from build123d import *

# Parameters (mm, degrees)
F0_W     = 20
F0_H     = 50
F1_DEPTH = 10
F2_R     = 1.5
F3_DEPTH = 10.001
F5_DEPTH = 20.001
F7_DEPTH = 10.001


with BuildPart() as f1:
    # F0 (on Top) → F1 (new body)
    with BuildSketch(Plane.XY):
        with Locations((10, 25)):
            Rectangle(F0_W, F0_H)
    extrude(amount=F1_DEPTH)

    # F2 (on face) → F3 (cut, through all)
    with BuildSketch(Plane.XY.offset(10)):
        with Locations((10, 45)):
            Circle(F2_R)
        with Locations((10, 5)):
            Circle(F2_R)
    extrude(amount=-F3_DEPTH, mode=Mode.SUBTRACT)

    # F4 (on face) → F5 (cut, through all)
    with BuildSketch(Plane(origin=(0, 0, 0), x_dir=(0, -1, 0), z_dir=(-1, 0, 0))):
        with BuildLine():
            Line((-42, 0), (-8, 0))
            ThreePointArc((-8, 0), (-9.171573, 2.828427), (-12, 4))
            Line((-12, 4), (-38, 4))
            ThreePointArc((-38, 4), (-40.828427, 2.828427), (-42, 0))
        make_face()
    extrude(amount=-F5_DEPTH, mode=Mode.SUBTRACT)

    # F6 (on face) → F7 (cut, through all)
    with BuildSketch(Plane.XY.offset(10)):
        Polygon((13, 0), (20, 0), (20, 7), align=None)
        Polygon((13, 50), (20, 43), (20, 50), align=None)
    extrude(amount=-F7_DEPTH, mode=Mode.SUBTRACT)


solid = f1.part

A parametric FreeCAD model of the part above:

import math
import FreeCAD as App
import Part
import Sketcher

V = App.Vector
Q = App.Units.Quantity

doc = App.newDocument("Part")
body = doc.addObject("PartDesign::Body", "Body")

sketch1 = body.newObject("Sketcher::SketchObject", "Sketch")
sketch1.AttachmentSupport = (doc.getObject("XY_Plane"), [""])
sketch1.MapMode = "FlatFace"
sketch1.addGeometry([
    Part.LineSegment(V(0, 50, 0), V(0, 0, 0)),
    Part.LineSegment(V(0, 0, 0), V(20, 0, 0)),
    Part.LineSegment(V(20, 0, 0), V(20, 50, 0)),
    Part.LineSegment(V(20, 50, 0), V(0, 50, 0)),
], False)
sketch1.addConstraint([
    Sketcher.Constraint("Coincident", 0, 2, 1, 1),
    Sketcher.Constraint("Coincident", 1, 2, 2, 1),
    Sketcher.Constraint("Coincident", 2, 2, 3, 1),
    Sketcher.Constraint("Coincident", 3, 2, 0, 1),
    Sketcher.Constraint("Vertical", 0),
    Sketcher.Constraint("Horizontal", 1),
    Sketcher.Constraint("Vertical", 2),
    Sketcher.Constraint("Horizontal", 3),
    Sketcher.Constraint("Coincident", 0, 2, -1, 1),
    Sketcher.Constraint("DistanceX", 1, 1, 1, 2, Q("20 mm")),
    Sketcher.Constraint("DistanceY", 0, 2, 0, 1, Q("50 mm")),
])
pad1 = body.newObject("PartDesign::Pad", "Pad")
pad1.Profile = sketch1
pad1.Length = 10

sketch2 = body.newObject("Sketcher::SketchObject", "Sketch001")
sketch2.AttachmentSupport = (doc.getObject("XY_Plane"), [""])
sketch2.MapMode = "FlatFace"
sketch2.AttachmentOffset = App.Placement(V(0, 0, 10), App.Rotation())
sketch2.addGeometry([
    Part.Circle(V(10, 45, 0), V(0, 0, 1), 1.5),
    Part.Circle(V(10, 5, 0), V(0, 0, 1), 1.5),
], False)
sketch2.addConstraint([
    Sketcher.Constraint("Equal", 0, 1),
    Sketcher.Constraint("Vertical", 0, 3, 1, 3),
    Sketcher.Constraint("Diameter", 0, Q("3 mm")),
    Sketcher.Constraint("DistanceX", -1, 1, 0, 3, Q("10 mm")),
    Sketcher.Constraint("DistanceY", -1, 1, 0, 3, Q("45 mm")),
    Sketcher.Constraint("DistanceY", -1, 1, 1, 3, Q("5 mm")),
])
pocket1 = body.newObject("PartDesign::Pocket", "Pocket")
pocket1.Profile = sketch2
pocket1.Type = "ThroughAll"

sketch3 = body.newObject("Sketcher::SketchObject", "Sketch002")
sketch3.AttachmentSupport = (doc.getObject("YZ_Plane"), [""])
sketch3.MapMode = "FlatFace"
sketch3.addGeometry([
    Part.LineSegment(V(42, 0, 0), V(8, 0, 0)),
    Part.ArcOfCircle(Part.Circle(V(12, 0, 0), V(0, 0, 1), 4), math.radians(90), math.radians(180)),
    Part.LineSegment(V(12, 4, 0), V(38, 4, 0)),
    Part.ArcOfCircle(Part.Circle(V(38, 0, 0), V(0, 0, 1), 4), math.radians(0), math.radians(90)),
], False)
sketch3.addConstraint([
    Sketcher.Constraint("Coincident", 0, 2, 1, 2),
    Sketcher.Constraint("Tangent", 1, 1, 2, 1),
    Sketcher.Constraint("Tangent", 2, 2, 3, 2),
    Sketcher.Constraint("Coincident", 3, 1, 0, 1),
    Sketcher.Constraint("Horizontal", 0),
    Sketcher.Constraint("Horizontal", 2),
    Sketcher.Constraint("Equal", 1, 3),
    Sketcher.Constraint("PointOnObject", 1, 3, -1),
    Sketcher.Constraint("PointOnObject", 0, 2, -1),
    Sketcher.Constraint("Radius", 1, Q("4 mm")),
    Sketcher.Constraint("DistanceX", 0, 2, 0, 1, Q("34 mm")),
    Sketcher.Constraint("DistanceX", -1, 1, 1, 3, Q("12 mm")),
])
pocket2 = body.newObject("PartDesign::Pocket", "Pocket001")
pocket2.Profile = sketch3
pocket2.Type = "ThroughAll"
pocket2.Reversed = True

sketch4 = body.newObject("Sketcher::SketchObject", "Sketch003")
sketch4.AttachmentSupport = (doc.getObject("XY_Plane"), [""])
sketch4.MapMode = "FlatFace"
sketch4.AttachmentOffset = App.Placement(V(0, 0, 10), App.Rotation())
sketch4.addGeometry([
    Part.LineSegment(V(13, 0, 0), V(20, 0, 0)),
    Part.LineSegment(V(20, 0, 0), V(20, 7, 0)),
    Part.LineSegment(V(20, 7, 0), V(13, 0, 0)),
    Part.LineSegment(V(13, 50, 0), V(20, 43, 0)),
    Part.LineSegment(V(20, 43, 0), V(20, 50, 0)),
    Part.LineSegment(V(20, 50, 0), V(13, 50, 0)),
], False)
sketch4.addConstraint([
    Sketcher.Constraint("Coincident", 0, 2, 1, 1),
    Sketcher.Constraint("Coincident", 1, 2, 2, 1),
    Sketcher.Constraint("Coincident", 2, 2, 0, 1),
    Sketcher.Constraint("Coincident", 3, 2, 4, 1),
    Sketcher.Constraint("Coincident", 4, 2, 5, 1),
    Sketcher.Constraint("Coincident", 5, 2, 3, 1),
    Sketcher.Constraint("Horizontal", 0),
    Sketcher.Constraint("Vertical", 1),
    Sketcher.Constraint("Vertical", 4),
    Sketcher.Constraint("Horizontal", 5),
    Sketcher.Constraint("PointOnObject", 0, 2, -1),
    Sketcher.Constraint("Perpendicular", 2, 3),
    Sketcher.Constraint("Vertical", 1, 2, 3, 2),
    Sketcher.Constraint("Vertical", 2, 2, 5, 2),
    Sketcher.Constraint("Equal", 5, 1),
    Sketcher.Constraint("DistanceX", 0, 1, 0, 2, Q("7 mm")),
    Sketcher.Constraint("DistanceX", -1, 1, 0, 2, Q("20 mm")),
    Sketcher.Constraint("DistanceY", -1, 1, 3, 2, Q("43 mm")),
])
pocket3 = body.newObject("PartDesign::Pocket", "Pocket002")
pocket3.Profile = sketch4
pocket3.Type = "ThroughAll"

doc.recompute()
